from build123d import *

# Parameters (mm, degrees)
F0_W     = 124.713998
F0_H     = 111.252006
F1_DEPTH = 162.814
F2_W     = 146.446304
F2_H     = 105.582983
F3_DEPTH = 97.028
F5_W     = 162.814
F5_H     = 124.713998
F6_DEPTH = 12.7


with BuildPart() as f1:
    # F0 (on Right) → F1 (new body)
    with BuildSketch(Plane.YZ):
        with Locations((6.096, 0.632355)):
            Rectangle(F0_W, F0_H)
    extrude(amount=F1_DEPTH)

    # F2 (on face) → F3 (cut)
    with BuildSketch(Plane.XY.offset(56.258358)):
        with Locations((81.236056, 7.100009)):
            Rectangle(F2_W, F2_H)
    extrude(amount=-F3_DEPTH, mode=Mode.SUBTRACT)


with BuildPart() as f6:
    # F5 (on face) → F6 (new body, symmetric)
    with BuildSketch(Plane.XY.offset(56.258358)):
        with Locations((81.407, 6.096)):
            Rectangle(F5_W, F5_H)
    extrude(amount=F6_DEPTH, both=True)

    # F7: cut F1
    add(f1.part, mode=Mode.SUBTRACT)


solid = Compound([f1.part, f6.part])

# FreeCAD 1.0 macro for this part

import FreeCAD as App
import Part
import Sketcher

V = App.Vector
Q = App.Units.Quantity

doc = App.newDocument("Part")
params = doc.addObject("Spreadsheet::Sheet", "Params")
for row, (alias, value) in enumerate([
    ("sketch1_width", "4.9099999 in"),
    ("pad1_length", "6.41 in"),
    ("pocket1_length", "3.82 in"),
    ("sketch3_width", "6.41 in"),
    ("sketch3_height", "4.9099999 in"),
    ("pad2_length", "1 in"),
], start=1):
    params.set(f"A{row}", alias)
    params.set(f"B{row}", "=" + value)
    params.setAlias(f"B{row}", alias)

body = doc.addObject("PartDesign::Body", "Body")

# Sketch on YZ plane
sketch1 = doc.addObject("Sketcher::SketchObject", "Sketch")
body.addObject(sketch1)
sketch1.AttachmentSupport = (doc.YZ_Plane, [""])
sketch1.MapMode = "FlatFace"
sketch1.addGeometry(Part.LineSegment(V(-56, 56, 0), V(-56, -55, 0)), False)
sketch1.addGeometry(Part.LineSegment(V(-56, -55, 0), V(68, -55, 0)), False)
sketch1.addGeometry(Part.LineSegment(V(68, -55, 0), V(68, 56, 0)), False)
sketch1.addGeometry(Part.LineSegment(V(68, 56, 0), V(-56, 56, 0)), False)
sketch1.addConstraint(Sketcher.Constraint("Coincident", 0, 2, 1, 1))
sketch1.addConstraint(Sketcher.Constraint("Coincident", 1, 2, 2, 1))
sketch1.addConstraint(Sketcher.Constraint("Coincident", 2, 2, 3, 1))
sketch1.addConstraint(Sketcher.Constraint("Coincident", 3, 2, 0, 1))
sketch1.addConstraint(Sketcher.Constraint("Vertical", 0))
sketch1.addConstraint(Sketcher.Constraint("Horizontal", 1))
sketch1.addConstraint(Sketcher.Constraint("Vertical", 2))
sketch1.addConstraint(Sketcher.Constraint("Horizontal", 3))
sketch1.addConstraint(Sketcher.Constraint("DistanceX", 1, 1, 1, 2, Q("4.9099999 in")))
sketch1.addConstraint(Sketcher.Constraint("DistanceX", 0, 2, -1, 1, Q("2.215 in")))
sketch1.addConstraint(Sketcher.Constraint("DistanceY", 0, 2, 0, 1, 111.252006))
sketch1.addConstraint(Sketcher.Constraint("DistanceY", 0, 2, -1, 1, 54.993648))
sketch1.setExpression("Constraints[8]", "Params.sketch1_width")
pad1 = doc.addObject("PartDesign::Pad", "Pad")
body.addObject(pad1)
pad1.Profile = sketch1
pad1.setExpression("Length", "Params.pad1_length")

# Sketch on XY plane
sketch2 = doc.addObject("Sketcher::SketchObject", "Sketch001")
body.addObject(sketch2)
sketch2.AttachmentSupport = (doc.XY_Plane, [""])
sketch2.MapMode = "FlatFace"
sketch2.AttachmentOffset = App.Placement(V(0, 0, 56.258358), App.Rotation())
sketch2.addGeometry(Part.LineSegment(V(8, 60, 0), V(8, -46, 0)), False)
sketch2.addGeometry(Part.LineSegment(V(8, -46, 0), V(154, -46, 0)), False)
sketch2.addGeometry(Part.LineSegment(V(154, -46, 0), V(154, 60, 0)), False)
sketch2.addGeometry(Part.LineSegment(V(154, 60, 0), V(8, 60, 0)), False)
sketch2.addConstraint(Sketcher.Constraint("Coincident", 0, 2, 1, 1))
sketch2.addConstraint(Sketcher.Constraint("Coincident", 1, 2, 2, 1))
sketch2.addConstraint(Sketcher.Constraint("Coincident", 2, 2, 3, 1))
sketch2.addConstraint(Sketcher.Constraint("Coincident", 3, 2, 0, 1))
sketch2.addConstraint(Sketcher.Constraint("Vertical", 0))
sketch2.addConstraint(Sketcher.Constraint("Horizontal", 1))
sketch2.addConstraint(Sketcher.Constraint("Vertical", 2))
sketch2.addConstraint(Sketcher.Constraint("Horizontal", 3))
sketch2.addConstraint(Sketcher.Constraint("DistanceY", -1, 1, 2, 2, 59.8915))
sketch2.addConstraint(Sketcher.Constraint("DistanceX", 1, 1, 1, 2, 146.446304))
sketch2.addConstraint(Sketcher.Constraint("DistanceY", 0, 2, 0, 1, 105.582983))
sketch2.addConstraint(Sketcher.Constraint("DistanceX", -1, 1, 0, 2, 8.012904))
pocket1 = doc.addObject("PartDesign::Pocket", "Pocket")
body.addObject(pocket1)
pocket1.Profile = sketch2
pocket1.setExpression("Length", "Params.pocket1_length")
body2 = doc.addObject("PartDesign::Body", "Body001")

# Sketch on XY plane
sketch3 = doc.addObject("Sketcher::SketchObject", "Sketch002")
body2.addObject(sketch3)
sketch3.AttachmentSupport = (doc.getObject("XY_Plane001"), [""])
sketch3.MapMode = "FlatFace"
sketch3.AttachmentOffset = App.Placement(V(0, 0, 56.258358), App.Rotation())
sketch3.addGeometry(Part.LineSegment(V(0, 68, 0), V(0, -56, 0)), False)
sketch3.addGeometry(Part.LineSegment(V(0, -56, 0), V(163, -56, 0)), False)
sketch3.addGeometry(Part.LineSegment(V(163, -56, 0), V(163, 68, 0)), False)
sketch3.addGeometry(Part.LineSegment(V(163, 68, 0), V(0, 68, 0)), False)
sketch3.addConstraint(Sketcher.Constraint("Coincident", 0, 2, 1, 1))
sketch3.addConstraint(Sketcher.Constraint("Coincident", 1, 2, 2, 1))
sketch3.addConstraint(Sketcher.Constraint("Coincident", 2, 2, 3, 1))
sketch3.addConstraint(Sketcher.Constraint("Coincident", 3, 2, 0, 1))
sketch3.addConstraint(Sketcher.Constraint("Vertical", 0))
sketch3.addConstraint(Sketcher.Constraint("Horizontal", 1))
sketch3.addConstraint(Sketcher.Constraint("Vertical", 2))
sketch3.addConstraint(Sketcher.Constraint("Horizontal", 3))
sketch3.addConstraint(Sketcher.Constraint("PointOnObject", 0, 2, -2))
sketch3.addConstraint(Sketcher.Constraint("DistanceX", 1, 1, 1, 2, Q("6.41 in")))
sketch3.addConstraint(Sketcher.Constraint("DistanceY", 0, 2, 0, 1, Q("4.9099999 in")))
sketch3.addConstraint(Sketcher.Constraint("DistanceY", 0, 2, -1, 1, Q("2.215 in")))
sketch3.setExpression("Constraints[9]", "Params.sketch3_width")
sketch3.setExpression("Constraints[10]", "Params.sketch3_height")
pad2 = doc.addObject("PartDesign::Pad", "Pad001")
body2.addObject(pad2)
pad2.Profile = sketch3
pad2.setExpression("Length", "Params.pad2_length")
pad2.Midplane = True
doc.recompute()

body3 = doc.addObject("PartDesign::Body", "Body002")
body3.BaseFeature = body
boolean = doc.addObject("PartDesign::Boolean", "Boolean")
body2.addObject(boolean)
boolean.Type = "Cut"
boolean.addObjects([body3])
doc.recompute()

doc.recompute()
